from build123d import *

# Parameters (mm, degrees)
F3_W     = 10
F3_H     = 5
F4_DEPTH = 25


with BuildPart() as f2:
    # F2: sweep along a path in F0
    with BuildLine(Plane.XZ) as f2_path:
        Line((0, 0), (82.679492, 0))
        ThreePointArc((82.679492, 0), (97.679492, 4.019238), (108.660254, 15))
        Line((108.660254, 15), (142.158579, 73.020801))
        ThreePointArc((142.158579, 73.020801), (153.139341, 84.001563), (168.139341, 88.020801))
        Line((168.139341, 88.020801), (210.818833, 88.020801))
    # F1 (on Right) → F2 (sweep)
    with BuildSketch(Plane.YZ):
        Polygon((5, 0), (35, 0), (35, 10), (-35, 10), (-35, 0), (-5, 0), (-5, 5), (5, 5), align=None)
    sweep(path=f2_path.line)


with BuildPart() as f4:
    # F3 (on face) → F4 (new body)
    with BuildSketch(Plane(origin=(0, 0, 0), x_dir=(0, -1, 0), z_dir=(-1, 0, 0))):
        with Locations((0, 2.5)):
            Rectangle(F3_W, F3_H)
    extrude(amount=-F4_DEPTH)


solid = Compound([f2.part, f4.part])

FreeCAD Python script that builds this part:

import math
import FreeCAD as App
import Part
import Sketcher

V = App.Vector
Q = App.Units.Quantity


def add_polygon(sketch, points):
    """Adds a closed chain of lines whose ends are joined by coincident constraints."""
    first, n = sketch.GeometryCount, len(points)
    for a, b in zip(points, points[1:] + points[:1]):
        sketch.addGeometry(Part.LineSegment(App.Vector(*a, 0), App.Vector(*b, 0)), False)
    for i in range(n):
        sketch.addConstraint(Sketcher.Constraint("Coincident", first + i, 2, first + (i + 1) % n, 1))

doc = App.newDocument("Part")
params = doc.addObject("Spreadsheet::Sheet", "Params")
for row, (alias, value) in enumerate([
    ("sketch1_width", "30 mm"),
    ("sketch1_width2", "70 mm"),
    ("sketch1_height", "5 mm"),
    ("sketch2_radius", "30 mm"),
    ("sketch3_width", "10 mm"),
    ("sketch3_height", "5 mm"),
    ("pad1_length", "25 mm"),
], start=1):
    params.set(f"A{row}", alias)
    params.set(f"B{row}", "=" + value)
    params.setAlias(f"B{row}", alias)

body = doc.addObject("PartDesign::Body", "Body")

sketch1 = body.newObject("Sketcher::SketchObject", "Sketch")
sketch1.AttachmentSupport = (doc.getObject("YZ_Plane"), [""])
sketch1.MapMode = "FlatFace"
add_polygon(sketch1, [(5, 0), (35, 0), (35, 10), (-35, 10), (-35, 0), (-5, 0), (-5, 5), (5, 5)])
sketch1.addConstraint([
    Sketcher.Constraint("Horizontal", 0),
    Sketcher.Constraint("Vertical", 1),
    Sketcher.Constraint("Horizontal", 2),
    Sketcher.Constraint("Vertical", 3),
    Sketcher.Constraint("Horizontal", 4),
    Sketcher.Constraint("Vertical", 5),
    Sketcher.Constraint("Horizontal", 6),
    Sketcher.Constraint("Vertical", 7),
    Sketcher.Constraint("Symmetric", 0, 2, 3, 2, -1, 1),
    Sketcher.Constraint("Symmetric", 4, 2, 7, 2, -2),
    Sketcher.Constraint("Equal", 6, 1),
    Sketcher.Constraint("DistanceX", 0, 1, 0, 2, 30.0),
    Sketcher.Constraint("DistanceX", 2, 2, 2, 1, 70.0),
    Sketcher.Constraint("DistanceY", 5, 1, 5, 2, 5.0),
])
sketch1.setExpression("Constraints[19]", "Params.sketch1_width")
sketch1.setExpression("Constraints[20]", "Params.sketch1_width2")
sketch1.setExpression("Constraints[21]", "Params.sketch1_height")

sketch2 = body.newObject("Sketcher::SketchObject", "Sketch001")
sketch2.AttachmentSupport = (doc.getObject("XZ_Plane"), [""])
sketch2.MapMode = "FlatFace"
sketch2.addGeometry([
    Part.LineSegment(V(0, 0, 0), V(82.679492, 0, 0)),
    Part.ArcOfCircle(Part.Circle(V(82.679492, 30, 0), V(0, 0, 1), 30), math.radians(-89.999999), math.radians(-30)),
    Part.LineSegment(V(108.660254, 15, 0), V(142.158579, 73.020801, 0)),
    Part.ArcOfCircle(Part.Circle(V(168.139341, 58.020801, 0), V(0, 0, 1), 30), math.radians(90.000001), math.radians(150)),
    Part.LineSegment(V(168.139341, 88.020801, 0), V(210.818833, 88.020801, 0)),
], False)
sketch2.addConstraint([
    Sketcher.Constraint("Tangent", 0, 2, 1, 1),
    Sketcher.Constraint("Tangent", 1, 2, 2, 1),
    Sketcher.Constraint("Tangent", 2, 2, 3, 2),
    Sketcher.Constraint("Tangent", 3, 1, 4, 1),
    Sketcher.Constraint("Horizontal", 0),
    Sketcher.Constraint("Horizontal", 4),
    Sketcher.Constraint("Coincident", 0, 1, -1, 1),
    Sketcher.Constraint("Equal", 1, 3),
    Sketcher.Constraint("Radius", 1, 30.0),
    Sketcher.Constraint("Angle", 2, Q("60 deg")),
    Sketcher.Constraint("DistanceX", 0, 1, 0, 2, 82.679492),
    Sketcher.Constraint("DistanceY", -1, 1, 3, 3, 58.020801),
    Sketcher.Constraint("DistanceX", 4, 1, 4, 2, 42.679492),
])
sketch2.setExpression("Constraints[8]", "Params.sketch2_radius")
doc.recompute()

additivepipe = body.newObject("PartDesign::AdditivePipe", "AdditivePipe")
additivepipe.Profile = sketch1
additivepipe.Spine = (sketch2, ["Edge1", "Edge2", "Edge3", "Edge4", "Edge5"])
body2 = doc.addObject("PartDesign::Body", "Body001")

sketch3 = body2.newObject("Sketcher::SketchObject", "Sketch002")
sketch3.AttachmentSupport = (doc.getObject("YZ_Plane001"), [""])
sketch3.MapMode = "FlatFace"
add_polygon(sketch3, [(5, 5), (5, 0), (-5, 0), (-5, 5)])
sketch3.addConstraint([
    Sketcher.Constraint("Vertical", 0),
    Sketcher.Constraint("Horizontal", 1),
    Sketcher.Constraint("Vertical", 2),
    Sketcher.Constraint("Horizontal", 3),
    Sketcher.Constraint("Symmetric", 0, 2, 1, 2, -1, 1),
    Sketcher.Constraint("DistanceX", 1, 2, 1, 1, 10.0),
    Sketcher.Constraint("DistanceY", 0, 2, 0, 1, 5.0),
])
sketch3.setExpression("Constraints[9]", "Params.sketch3_width")
sketch3.setExpression("Constraints[10]", "Params.sketch3_height")
pad1 = body2.newObject("PartDesign::Pad", "Pad")
pad1.Profile = sketch3
pad1.setExpression("Length", "Params.pad1_length")

doc.recompute()
